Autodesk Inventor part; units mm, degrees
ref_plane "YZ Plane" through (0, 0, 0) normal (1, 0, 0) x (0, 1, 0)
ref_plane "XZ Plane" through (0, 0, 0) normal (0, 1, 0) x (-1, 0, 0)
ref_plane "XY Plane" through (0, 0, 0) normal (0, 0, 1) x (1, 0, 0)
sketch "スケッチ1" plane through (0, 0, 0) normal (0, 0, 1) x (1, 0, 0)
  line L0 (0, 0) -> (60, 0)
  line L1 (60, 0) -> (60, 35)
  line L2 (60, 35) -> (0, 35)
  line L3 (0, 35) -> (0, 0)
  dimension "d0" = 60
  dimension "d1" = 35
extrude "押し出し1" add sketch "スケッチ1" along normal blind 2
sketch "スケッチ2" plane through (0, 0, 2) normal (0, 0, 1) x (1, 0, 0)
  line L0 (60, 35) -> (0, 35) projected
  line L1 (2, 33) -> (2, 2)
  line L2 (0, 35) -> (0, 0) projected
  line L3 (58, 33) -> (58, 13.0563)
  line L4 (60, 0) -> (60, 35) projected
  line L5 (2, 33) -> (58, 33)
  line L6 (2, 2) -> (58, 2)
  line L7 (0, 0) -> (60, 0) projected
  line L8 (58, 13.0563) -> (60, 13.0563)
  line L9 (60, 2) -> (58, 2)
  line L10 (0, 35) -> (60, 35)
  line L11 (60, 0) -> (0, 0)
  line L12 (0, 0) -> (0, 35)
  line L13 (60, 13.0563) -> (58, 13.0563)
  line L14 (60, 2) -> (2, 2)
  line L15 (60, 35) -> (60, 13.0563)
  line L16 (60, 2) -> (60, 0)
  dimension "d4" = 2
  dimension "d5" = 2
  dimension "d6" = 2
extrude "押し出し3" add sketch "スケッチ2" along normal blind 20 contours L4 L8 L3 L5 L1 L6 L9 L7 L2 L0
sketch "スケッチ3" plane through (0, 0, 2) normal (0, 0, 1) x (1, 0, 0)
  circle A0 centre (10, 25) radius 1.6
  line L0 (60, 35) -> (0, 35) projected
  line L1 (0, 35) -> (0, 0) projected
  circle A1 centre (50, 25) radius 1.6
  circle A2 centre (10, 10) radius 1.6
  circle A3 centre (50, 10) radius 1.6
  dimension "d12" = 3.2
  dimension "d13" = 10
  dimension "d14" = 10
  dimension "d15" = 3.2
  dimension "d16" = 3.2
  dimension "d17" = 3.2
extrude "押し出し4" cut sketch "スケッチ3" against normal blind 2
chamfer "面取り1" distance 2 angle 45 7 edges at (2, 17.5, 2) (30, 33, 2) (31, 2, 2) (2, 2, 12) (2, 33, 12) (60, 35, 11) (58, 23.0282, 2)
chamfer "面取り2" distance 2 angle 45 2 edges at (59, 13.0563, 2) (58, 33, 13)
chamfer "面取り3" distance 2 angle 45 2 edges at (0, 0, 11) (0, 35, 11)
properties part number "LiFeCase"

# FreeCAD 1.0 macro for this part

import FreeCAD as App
import Part
import Sketcher


def edges_at(feature, points):
    """Names of the edges that pass closest to the given points."""
    edges = feature.Shape.Edges
    near = lambda p: min(range(len(edges)), key=lambda i: edges[i].distToShape(Part.Vertex(*p))[0])
    return sorted({f"Edge{near(p) + 1}" for p in points})

doc = App.newDocument("Part")
params = doc.addObject("Spreadsheet::Sheet", "Params")
for row, (alias, value) in enumerate([
    ("sketch1_width", "60 mm"),
    ("sketch1_height", "35 mm"),
    ("pad1_length", "2 mm"),
    ("sketch2_width", "2 mm"),
    ("sketch2_width2", "60 mm"),
    ("sketch2_height", "35 mm"),
    ("pad2_length", "20 mm"),
    ("sketch3_diameter", "3.2 mm"),
    ("pocket1_length", "2 mm"),
    ("chamfer_size", "2 mm"),
    ("chamfer2_size", "2 mm"),
    ("chamfer3_size", "2 mm"),
], start=1):
    params.set(f"A{row}", alias)
    params.set(f"B{row}", "=" + value)
    params.setAlias(f"B{row}", alias)

body = doc.addObject("PartDesign::Body", "Body")

# Sketch on XY plane
sketch1 = doc.addObject("Sketcher::SketchObject", "Sketch")
body.addObject(sketch1)
sketch1.AttachmentSupport = (doc.XY_Plane, [""])
sketch1.MapMode = "FlatFace"
sketch1.addGeometry([
    Part.LineSegment(App.Vector(0, 35, 0), App.Vector(0, 0, 0)),
    Part.LineSegment(App.Vector(0, 0, 0), App.Vector(60, 0, 0)),
    Part.LineSegment(App.Vector(60, 0, 0), App.Vector(60, 35, 0)),
    Part.LineSegment(App.Vector(60, 35, 0), App.Vector(0, 35, 0)),
], False)
sketch1.addConstraint([
    Sketcher.Constraint("Coincident", 0, 2, 1, 1),
    Sketcher.Constraint("Coincident", 1, 2, 2, 1),
    Sketcher.Constraint("Coincident", 2, 2, 3, 1),
    Sketcher.Constraint("Coincident", 3, 2, 0, 1),
    Sketcher.Constraint("Vertical", 0),
    Sketcher.Constraint("Horizontal", 1),
    Sketcher.Constraint("Vertical", 2),
    Sketcher.Constraint("Horizontal", 3),
    Sketcher.Constraint("Coincident", 0, 2, -1, 1),
    Sketcher.Constraint("DistanceX", 1, 1, 1, 2, 60.0),
    Sketcher.Constraint("DistanceY", 0, 2, 0, 1, 35.0),
])
sketch1.setExpression("Constraints[9]", "Params.sketch1_width")
sketch1.setExpression("Constraints[10]", "Params.sketch1_height")
pad1 = doc.addObject("PartDesign::Pad", "Pad")
body.addObject(pad1)
pad1.Profile = sketch1
pad1.setExpression("Length", "Params.pad1_length")

# Sketch on XY plane
sketch2 = doc.addObject("Sketcher::SketchObject", "Sketch001")
body.addObject(sketch2)
sketch2.AttachmentSupport = (doc.XY_Plane, [""])
sketch2.MapMode = "FlatFace"
sketch2.AttachmentOffset = App.Placement(App.Vector(0, 0, 2), App.Rotation())
sketch2.addGeometry([
    Part.LineSegment(App.Vector(60, 13.0563, 0), App.Vector(60, 35, 0)),  # 0
    Part.LineSegment(App.Vector(60, 35, 0), App.Vector(0, 35, 0)),  # 1
    Part.LineSegment(App.Vector(0, 35, 0), App.Vector(0, 0, 0)),  # 2
    Part.LineSegment(App.Vector(0, 0, 0), App.Vector(60, 0, 0)),  # 3
    Part.LineSegment(App.Vector(60, 0, 0), App.Vector(60, 2, 0)),  # 4
    Part.LineSegment(App.Vector(60, 2, 0), App.Vector(2, 2, 0)),  # 5
    Part.LineSegment(App.Vector(2, 2, 0), App.Vector(2, 33, 0)),  # 6
    Part.LineSegment(App.Vector(2, 33, 0), App.Vector(58, 33, 0)),  # 7
    Part.LineSegment(App.Vector(58, 33, 0), App.Vector(58, 13.0563, 0)),  # 8
    Part.LineSegment(App.Vector(58, 13.0563, 0), App.Vector(60, 13.0563, 0)),  # 9
], False)
sketch2.addConstraint([
    Sketcher.Constraint("Coincident", 0, 2, 1, 1),
    Sketcher.Constraint("Coincident", 1, 2, 2, 1),
    Sketcher.Constraint("Coincident", 2, 2, 3, 1),
    Sketcher.Constraint("Coincident", 3, 2, 4, 1),
    Sketcher.Constraint("Coincident", 4, 2, 5, 1),
    Sketcher.Constraint("Coincident", 5, 2, 6, 1),
    Sketcher.Constraint("Coincident", 6, 2, 7, 1),
    Sketcher.Constraint("Coincident", 7, 2, 8, 1),
    Sketcher.Constraint("Coincident", 8, 2, 9, 1),
    Sketcher.Constraint("Coincident", 9, 2, 0, 1),
    Sketcher.Constraint("Vertical", 0),
    Sketcher.Constraint("Horizontal", 1),
    Sketcher.Constraint("Vertical", 2),
    Sketcher.Constraint("Horizontal", 3),
    Sketcher.Constraint("Vertical", 4),
    Sketcher.Constraint("Horizontal", 5),
    Sketcher.Constraint("Vertical", 6),
    Sketcher.Constraint("Horizontal", 7),
    Sketcher.Constraint("Vertical", 8),
    Sketcher.Constraint("Horizontal", 9),
    Sketcher.Constraint("Coincident", 2, 2, -1, 1),
    Sketcher.Constraint("Vertical", 0, 2, 3, 2),
    Sketcher.Constraint("Equal", 9, 4),
    Sketcher.Constraint("DistanceX", 9, 1, 9, 2, 2.0),
    Sketcher.Constraint("DistanceX", -1, 1, 5, 2, 2.0),
    Sketcher.Constraint("DistanceY", 6, 2, 1, 2, 2.0),
    Sketcher.Constraint("DistanceX", 1, 2, 1, 1, 60.0),
    Sketcher.Constraint("DistanceY", 2, 2, 2, 1, 35.0),
    Sketcher.Constraint("DistanceY", 0, 1, 0, 2, 21.9437),
])
sketch2.setExpression("Constraints[23]", "Params.sketch2_width")
sketch2.setExpression("Constraints[26]", "Params.sketch2_width2")
sketch2.setExpression("Constraints[27]", "Params.sketch2_height")
pad2 = doc.addObject("PartDesign::Pad", "Pad001")
body.addObject(pad2)
pad2.Profile = sketch2
pad2.setExpression("Length", "Params.pad2_length")

# Sketch on XY plane
sketch3 = doc.addObject("Sketcher::SketchObject", "Sketch002")
body.addObject(sketch3)
sketch3.AttachmentSupport = (doc.XY_Plane, [""])
sketch3.MapMode = "FlatFace"
sketch3.AttachmentOffset = App.Placement(App.Vector(0, 0, 2), App.Rotation())
sketch3.addGeometry([
    Part.Circle(App.Vector(10, 25, 0), App.Vector(0, 0, 1), 1.6),
    Part.Circle(App.Vector(50, 25, 0), App.Vector(0, 0, 1), 1.6),
    Part.Circle(App.Vector(10, 10, 0), App.Vector(0, 0, 1), 1.6),
    Part.Circle(App.Vector(50, 10, 0), App.Vector(0, 0, 1), 1.6),
], False)
sketch3.addConstraint([
    Sketcher.Constraint("Equal", 0, 1),
    Sketcher.Constraint("Equal", 1, 2),
    Sketcher.Constraint("Equal", 2, 3),
    Sketcher.Constraint("Horizontal", 0, 3, 1, 3),
    Sketcher.Constraint("Horizontal", 2, 3, 3, 3),
    Sketcher.Constraint("Vertical", 0, 3, 2, 3),
    Sketcher.Constraint("Vertical", 1, 3, 3, 3),
    Sketcher.Constraint("Diameter", 0, 3.2),
    Sketcher.Constraint("DistanceX", -1, 1, 0, 3, 10.0),
    Sketcher.Constraint("DistanceY", -1, 1, 2, 3, 10.0),
    Sketcher.Constraint("DistanceY", -1, 1, 0, 3, 25.0),
    Sketcher.Constraint("DistanceX", -1, 1, 1, 3, 50.0),
])
sketch3.setExpression("Constraints[7]", "Params.sketch3_diameter")
pocket1 = doc.addObject("PartDesign::Pocket", "Pocket")
body.addObject(pocket1)
pocket1.Profile = sketch3
pocket1.setExpression("Length", "Params.pocket1_length")
doc.recompute()

chamfer = doc.addObject("PartDesign::Chamfer", "Chamfer")
body.addObject(chamfer)
chamfer.Base = (pocket1, edges_at(pocket1, [
    (2, 17.5, 2),
    (30, 33, 2),
    (31, 2, 2),
    (2, 2, 12),
    (2, 33, 12),
    (60, 35, 11),
    (58, 23.028, 2),
]))
chamfer.setExpression("Size", "Params.chamfer_size")
doc.recompute()

chamfer2 = doc.addObject("PartDesign::Chamfer", "Chamfer001")
body.addObject(chamfer2)
chamfer2.Base = (chamfer, edges_at(chamfer, [(59, 13.056, 2), (58, 33, 13)]))
chamfer2.setExpression("Size", "Params.chamfer2_size")
doc.recompute()

chamfer3 = doc.addObject("PartDesign::Chamfer", "Chamfer002")
body.addObject(chamfer3)
chamfer3.Base = (chamfer2, edges_at(chamfer2, [(0, 0, 11), (0, 35, 11)]))
chamfer3.setExpression("Size", "Params.chamfer3_size")

doc.recompute()
